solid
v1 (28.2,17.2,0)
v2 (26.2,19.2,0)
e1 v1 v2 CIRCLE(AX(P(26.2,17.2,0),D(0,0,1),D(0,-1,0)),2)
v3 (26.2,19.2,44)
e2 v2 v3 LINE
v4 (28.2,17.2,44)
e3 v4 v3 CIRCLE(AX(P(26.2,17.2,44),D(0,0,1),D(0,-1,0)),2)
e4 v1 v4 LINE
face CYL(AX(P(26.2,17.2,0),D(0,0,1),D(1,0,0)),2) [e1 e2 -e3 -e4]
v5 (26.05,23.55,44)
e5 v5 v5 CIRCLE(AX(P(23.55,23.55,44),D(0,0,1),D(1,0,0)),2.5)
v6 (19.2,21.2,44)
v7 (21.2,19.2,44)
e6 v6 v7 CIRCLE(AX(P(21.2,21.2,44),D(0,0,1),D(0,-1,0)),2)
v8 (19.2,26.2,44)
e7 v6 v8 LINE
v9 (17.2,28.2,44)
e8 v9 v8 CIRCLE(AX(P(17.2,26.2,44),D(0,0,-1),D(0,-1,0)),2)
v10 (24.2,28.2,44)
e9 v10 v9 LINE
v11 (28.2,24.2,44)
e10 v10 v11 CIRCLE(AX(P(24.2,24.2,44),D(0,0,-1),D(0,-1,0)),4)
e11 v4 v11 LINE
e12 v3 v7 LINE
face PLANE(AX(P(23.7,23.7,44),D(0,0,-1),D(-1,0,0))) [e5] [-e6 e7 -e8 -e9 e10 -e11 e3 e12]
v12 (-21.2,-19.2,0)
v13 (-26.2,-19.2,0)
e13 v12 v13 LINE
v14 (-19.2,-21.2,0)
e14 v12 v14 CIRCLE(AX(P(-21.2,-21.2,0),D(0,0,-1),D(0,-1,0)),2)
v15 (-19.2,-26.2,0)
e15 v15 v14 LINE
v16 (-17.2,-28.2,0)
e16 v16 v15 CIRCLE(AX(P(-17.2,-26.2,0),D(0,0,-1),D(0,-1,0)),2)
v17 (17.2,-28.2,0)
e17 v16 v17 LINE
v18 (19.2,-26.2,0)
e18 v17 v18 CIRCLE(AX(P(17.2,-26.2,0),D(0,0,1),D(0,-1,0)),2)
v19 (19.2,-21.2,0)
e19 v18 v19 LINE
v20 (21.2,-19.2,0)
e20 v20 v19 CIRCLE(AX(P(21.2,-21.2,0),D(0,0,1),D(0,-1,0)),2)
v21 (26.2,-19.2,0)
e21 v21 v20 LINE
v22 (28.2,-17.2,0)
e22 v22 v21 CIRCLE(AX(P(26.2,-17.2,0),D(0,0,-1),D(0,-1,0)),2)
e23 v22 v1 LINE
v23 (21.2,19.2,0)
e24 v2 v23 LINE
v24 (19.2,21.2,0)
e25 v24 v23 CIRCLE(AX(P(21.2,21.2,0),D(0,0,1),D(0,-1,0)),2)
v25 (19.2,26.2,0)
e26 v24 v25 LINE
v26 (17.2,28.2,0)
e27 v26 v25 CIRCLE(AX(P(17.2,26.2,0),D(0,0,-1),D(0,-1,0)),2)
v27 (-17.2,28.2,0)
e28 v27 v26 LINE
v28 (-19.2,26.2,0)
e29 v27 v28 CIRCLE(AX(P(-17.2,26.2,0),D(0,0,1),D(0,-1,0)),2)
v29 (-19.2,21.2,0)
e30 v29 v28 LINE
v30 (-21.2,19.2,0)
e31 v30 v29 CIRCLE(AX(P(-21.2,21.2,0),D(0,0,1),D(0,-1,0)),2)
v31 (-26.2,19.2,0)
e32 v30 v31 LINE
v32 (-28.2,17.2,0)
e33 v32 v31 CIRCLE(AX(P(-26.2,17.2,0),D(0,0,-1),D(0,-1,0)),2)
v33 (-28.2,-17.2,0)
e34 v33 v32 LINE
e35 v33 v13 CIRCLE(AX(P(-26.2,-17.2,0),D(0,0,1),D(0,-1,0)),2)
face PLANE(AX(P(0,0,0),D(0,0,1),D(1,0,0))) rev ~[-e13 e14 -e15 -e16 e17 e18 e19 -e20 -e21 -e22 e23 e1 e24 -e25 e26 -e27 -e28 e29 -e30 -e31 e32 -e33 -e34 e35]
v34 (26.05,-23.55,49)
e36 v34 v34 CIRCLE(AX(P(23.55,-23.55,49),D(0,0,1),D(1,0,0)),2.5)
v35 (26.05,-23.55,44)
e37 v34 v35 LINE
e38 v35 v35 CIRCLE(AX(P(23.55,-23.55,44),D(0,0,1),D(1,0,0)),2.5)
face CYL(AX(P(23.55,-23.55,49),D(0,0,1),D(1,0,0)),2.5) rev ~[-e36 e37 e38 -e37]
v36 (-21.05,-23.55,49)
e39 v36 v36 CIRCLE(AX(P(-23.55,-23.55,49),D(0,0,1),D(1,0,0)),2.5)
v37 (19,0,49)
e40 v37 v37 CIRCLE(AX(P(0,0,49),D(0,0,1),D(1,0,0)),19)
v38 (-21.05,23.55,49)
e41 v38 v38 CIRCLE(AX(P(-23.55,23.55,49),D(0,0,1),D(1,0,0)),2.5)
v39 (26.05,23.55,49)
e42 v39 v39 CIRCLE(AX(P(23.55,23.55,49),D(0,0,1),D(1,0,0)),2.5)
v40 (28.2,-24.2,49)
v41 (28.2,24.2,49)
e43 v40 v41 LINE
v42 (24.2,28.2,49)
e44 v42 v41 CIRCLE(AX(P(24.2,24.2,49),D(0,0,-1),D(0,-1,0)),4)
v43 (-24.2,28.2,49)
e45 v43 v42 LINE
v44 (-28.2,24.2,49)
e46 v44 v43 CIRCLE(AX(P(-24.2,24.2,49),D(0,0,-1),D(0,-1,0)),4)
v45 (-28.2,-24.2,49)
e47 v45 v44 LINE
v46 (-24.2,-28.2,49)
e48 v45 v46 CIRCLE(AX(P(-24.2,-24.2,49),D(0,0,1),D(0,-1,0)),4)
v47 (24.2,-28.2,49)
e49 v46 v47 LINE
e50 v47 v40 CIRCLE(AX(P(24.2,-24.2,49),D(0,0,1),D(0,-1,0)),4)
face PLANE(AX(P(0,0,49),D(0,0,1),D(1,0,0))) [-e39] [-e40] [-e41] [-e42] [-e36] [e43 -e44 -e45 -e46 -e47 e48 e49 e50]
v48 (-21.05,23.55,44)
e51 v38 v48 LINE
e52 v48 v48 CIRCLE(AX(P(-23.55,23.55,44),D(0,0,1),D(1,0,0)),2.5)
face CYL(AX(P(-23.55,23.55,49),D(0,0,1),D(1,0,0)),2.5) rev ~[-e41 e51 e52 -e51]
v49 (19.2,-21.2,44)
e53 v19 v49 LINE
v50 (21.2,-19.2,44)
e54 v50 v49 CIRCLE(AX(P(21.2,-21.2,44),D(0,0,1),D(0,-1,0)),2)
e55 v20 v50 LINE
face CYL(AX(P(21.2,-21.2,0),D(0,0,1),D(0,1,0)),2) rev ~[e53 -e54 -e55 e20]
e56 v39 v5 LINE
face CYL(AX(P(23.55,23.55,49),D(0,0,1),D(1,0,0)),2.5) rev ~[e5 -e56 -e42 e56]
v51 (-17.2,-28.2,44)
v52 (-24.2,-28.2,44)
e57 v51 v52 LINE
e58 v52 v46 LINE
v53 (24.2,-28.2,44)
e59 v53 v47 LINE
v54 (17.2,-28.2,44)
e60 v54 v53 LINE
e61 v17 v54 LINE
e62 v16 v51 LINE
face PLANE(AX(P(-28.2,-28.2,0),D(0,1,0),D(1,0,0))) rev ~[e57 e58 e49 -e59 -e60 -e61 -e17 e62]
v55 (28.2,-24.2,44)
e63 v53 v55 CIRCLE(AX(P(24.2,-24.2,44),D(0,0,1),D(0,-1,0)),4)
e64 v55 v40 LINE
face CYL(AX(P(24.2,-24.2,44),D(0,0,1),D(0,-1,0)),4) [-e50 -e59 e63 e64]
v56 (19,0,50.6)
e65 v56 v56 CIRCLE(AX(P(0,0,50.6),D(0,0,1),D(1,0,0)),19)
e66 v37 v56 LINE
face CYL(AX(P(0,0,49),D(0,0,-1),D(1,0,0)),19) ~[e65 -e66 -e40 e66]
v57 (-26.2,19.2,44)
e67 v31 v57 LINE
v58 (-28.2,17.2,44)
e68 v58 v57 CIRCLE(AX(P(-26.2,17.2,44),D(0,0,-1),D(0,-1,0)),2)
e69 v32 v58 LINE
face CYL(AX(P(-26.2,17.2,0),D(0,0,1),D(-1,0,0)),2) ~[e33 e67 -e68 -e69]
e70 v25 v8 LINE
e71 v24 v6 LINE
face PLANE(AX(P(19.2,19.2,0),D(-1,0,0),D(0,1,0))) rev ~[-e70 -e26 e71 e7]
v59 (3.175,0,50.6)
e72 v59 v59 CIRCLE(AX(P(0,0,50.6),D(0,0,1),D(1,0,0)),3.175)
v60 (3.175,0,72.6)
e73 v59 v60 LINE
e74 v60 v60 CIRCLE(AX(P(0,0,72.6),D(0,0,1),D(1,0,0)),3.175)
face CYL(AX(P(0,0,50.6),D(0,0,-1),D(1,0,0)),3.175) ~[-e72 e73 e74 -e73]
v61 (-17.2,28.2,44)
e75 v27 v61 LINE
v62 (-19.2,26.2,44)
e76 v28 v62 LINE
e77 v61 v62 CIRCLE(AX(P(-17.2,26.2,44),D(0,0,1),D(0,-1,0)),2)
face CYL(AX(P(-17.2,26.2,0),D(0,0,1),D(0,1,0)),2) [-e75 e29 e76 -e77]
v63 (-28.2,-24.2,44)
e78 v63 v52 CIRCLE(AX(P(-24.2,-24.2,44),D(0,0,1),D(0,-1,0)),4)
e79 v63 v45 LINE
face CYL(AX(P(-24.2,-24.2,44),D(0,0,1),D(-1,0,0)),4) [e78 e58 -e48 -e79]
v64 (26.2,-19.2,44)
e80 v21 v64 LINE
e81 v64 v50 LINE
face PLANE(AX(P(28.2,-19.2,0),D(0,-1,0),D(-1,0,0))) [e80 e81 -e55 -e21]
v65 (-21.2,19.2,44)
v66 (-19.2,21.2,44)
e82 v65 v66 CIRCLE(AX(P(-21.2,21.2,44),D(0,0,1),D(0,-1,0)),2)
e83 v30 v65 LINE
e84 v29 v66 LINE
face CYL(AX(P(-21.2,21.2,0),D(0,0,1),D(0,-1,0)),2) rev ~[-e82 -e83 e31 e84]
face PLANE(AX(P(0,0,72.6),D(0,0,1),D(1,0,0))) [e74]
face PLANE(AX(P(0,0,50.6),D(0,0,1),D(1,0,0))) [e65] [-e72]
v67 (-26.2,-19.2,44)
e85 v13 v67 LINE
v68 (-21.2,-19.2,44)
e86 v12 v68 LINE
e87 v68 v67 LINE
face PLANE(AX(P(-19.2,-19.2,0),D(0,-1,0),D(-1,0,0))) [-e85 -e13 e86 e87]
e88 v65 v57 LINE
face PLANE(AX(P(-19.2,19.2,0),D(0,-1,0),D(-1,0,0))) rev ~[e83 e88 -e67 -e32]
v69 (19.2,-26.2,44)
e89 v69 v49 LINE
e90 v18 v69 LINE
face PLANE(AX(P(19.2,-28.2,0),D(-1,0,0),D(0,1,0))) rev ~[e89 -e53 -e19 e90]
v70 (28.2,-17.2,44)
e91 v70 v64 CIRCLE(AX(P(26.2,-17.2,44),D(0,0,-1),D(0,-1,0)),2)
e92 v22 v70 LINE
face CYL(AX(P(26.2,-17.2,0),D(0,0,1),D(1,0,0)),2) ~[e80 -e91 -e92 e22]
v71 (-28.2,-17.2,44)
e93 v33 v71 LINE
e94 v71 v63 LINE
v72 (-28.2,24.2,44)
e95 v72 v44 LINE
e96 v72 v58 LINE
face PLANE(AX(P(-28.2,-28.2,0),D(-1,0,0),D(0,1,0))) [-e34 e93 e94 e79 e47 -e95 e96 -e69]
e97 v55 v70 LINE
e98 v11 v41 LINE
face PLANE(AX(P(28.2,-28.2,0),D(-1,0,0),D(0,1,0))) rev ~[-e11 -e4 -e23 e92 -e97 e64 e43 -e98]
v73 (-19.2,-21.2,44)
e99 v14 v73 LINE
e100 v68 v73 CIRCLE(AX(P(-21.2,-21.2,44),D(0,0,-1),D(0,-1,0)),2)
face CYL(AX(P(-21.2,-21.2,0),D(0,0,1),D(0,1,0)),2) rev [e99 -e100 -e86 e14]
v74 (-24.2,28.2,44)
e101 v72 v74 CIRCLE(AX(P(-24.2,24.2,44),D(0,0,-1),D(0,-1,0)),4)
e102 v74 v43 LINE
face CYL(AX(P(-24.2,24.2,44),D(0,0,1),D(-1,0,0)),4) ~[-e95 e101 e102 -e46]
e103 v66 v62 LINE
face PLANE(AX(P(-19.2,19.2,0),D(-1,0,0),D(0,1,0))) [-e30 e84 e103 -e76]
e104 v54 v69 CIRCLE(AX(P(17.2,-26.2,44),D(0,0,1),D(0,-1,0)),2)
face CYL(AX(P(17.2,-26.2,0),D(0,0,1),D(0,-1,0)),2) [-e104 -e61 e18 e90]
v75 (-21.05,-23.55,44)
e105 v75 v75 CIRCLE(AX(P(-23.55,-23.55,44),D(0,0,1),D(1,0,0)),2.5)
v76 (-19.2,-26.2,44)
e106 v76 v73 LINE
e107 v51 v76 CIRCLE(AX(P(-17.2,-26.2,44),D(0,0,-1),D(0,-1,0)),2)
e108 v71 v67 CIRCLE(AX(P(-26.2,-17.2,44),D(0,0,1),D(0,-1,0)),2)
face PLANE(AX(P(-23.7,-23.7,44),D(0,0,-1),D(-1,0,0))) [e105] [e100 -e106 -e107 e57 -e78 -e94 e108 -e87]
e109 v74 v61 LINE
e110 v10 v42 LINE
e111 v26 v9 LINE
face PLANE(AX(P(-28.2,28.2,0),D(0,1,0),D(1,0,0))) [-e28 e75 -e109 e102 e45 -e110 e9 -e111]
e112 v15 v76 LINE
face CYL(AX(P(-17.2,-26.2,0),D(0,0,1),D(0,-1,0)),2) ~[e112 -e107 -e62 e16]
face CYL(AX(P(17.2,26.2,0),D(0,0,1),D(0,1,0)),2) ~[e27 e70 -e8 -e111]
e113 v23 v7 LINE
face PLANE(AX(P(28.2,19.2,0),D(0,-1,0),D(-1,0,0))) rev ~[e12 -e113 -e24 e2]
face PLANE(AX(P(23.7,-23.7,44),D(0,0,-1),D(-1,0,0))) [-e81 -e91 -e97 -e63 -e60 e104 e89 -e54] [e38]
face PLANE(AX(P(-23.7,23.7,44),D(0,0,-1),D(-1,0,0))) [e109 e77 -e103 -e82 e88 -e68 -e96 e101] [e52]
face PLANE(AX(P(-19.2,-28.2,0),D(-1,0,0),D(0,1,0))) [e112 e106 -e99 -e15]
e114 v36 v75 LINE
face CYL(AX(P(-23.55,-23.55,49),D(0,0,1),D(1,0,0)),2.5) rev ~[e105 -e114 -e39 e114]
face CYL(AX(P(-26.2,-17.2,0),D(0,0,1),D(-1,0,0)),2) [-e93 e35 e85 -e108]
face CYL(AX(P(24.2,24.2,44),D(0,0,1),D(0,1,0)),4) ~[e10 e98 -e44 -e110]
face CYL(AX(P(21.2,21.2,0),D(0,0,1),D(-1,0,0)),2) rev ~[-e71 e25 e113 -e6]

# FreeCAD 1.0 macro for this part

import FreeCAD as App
import Part
import Sketcher


def edges_at(feature, points):
    """Names of the edges that pass closest to the given points."""
    edges = feature.Shape.Edges
    near = lambda p: min(range(len(edges)), key=lambda i: edges[i].distToShape(Part.Vertex(*p))[0])
    return sorted({f"Edge{near(p) + 1}" for p in points})

doc = App.newDocument("Part")
body = doc.addObject("PartDesign::Body", "Body")

sketch1 = body.newObject("Sketcher::SketchObject", "Sketch")
sketch1.AttachmentSupport = (doc.getObject("XY_Plane"), [""])
sketch1.MapMode = "FlatFace"
sketch1.addGeometry(Part.LineSegment(App.Vector(-28, 28, 0), App.Vector(-28, -28, 0)), False)
sketch1.addGeometry(Part.LineSegment(App.Vector(-28, -28, 0), App.Vector(28, -28, 0)), False)
sketch1.addGeometry(Part.LineSegment(App.Vector(28, -28, 0), App.Vector(28, 28, 0)), False)
sketch1.addGeometry(Part.LineSegment(App.Vector(28, 28, 0), App.Vector(-28, 28, 0)), False)
sketch1.addConstraint(Sketcher.Constraint("Coincident", 0, 2, 1, 1))
sketch1.addConstraint(Sketcher.Constraint("Coincident", 1, 2, 2, 1))
sketch1.addConstraint(Sketcher.Constraint("Coincident", 2, 2, 3, 1))
sketch1.addConstraint(Sketcher.Constraint("Coincident", 3, 2, 0, 1))
sketch1.addConstraint(Sketcher.Constraint("Vertical", 0))
sketch1.addConstraint(Sketcher.Constraint("Horizontal", 1))
sketch1.addConstraint(Sketcher.Constraint("Vertical", 2))
sketch1.addConstraint(Sketcher.Constraint("Horizontal", 3))
sketch1.addConstraint(Sketcher.Constraint("Symmetric", 0, 2, 2, 2, -1, 1))
sketch1.addConstraint(Sketcher.Constraint("Equal", 3, 0))
sketch1.addConstraint(Sketcher.Constraint("DistanceX", 1, 1, 1, 2, 56.4))
pad1 = body.newObject("PartDesign::Pad", "Pad")
pad1.Profile = sketch1
pad1.Length = 49

sketch2 = body.newObject("Sketcher::SketchObject", "Sketch001")
sketch2.AttachmentSupport = (doc.getObject("XY_Plane"), [""])
sketch2.MapMode = "FlatFace"
sketch2.AttachmentOffset = App.Placement(App.Vector(0, 0, 49), App.Rotation())
sketch2.addGeometry(Part.Circle(App.Vector(0, 0, 0), App.Vector(0, 0, 1), 19), False)
sketch2.addConstraint(Sketcher.Constraint("Coincident", 0, 3, -1, 1))
sketch2.addConstraint(Sketcher.Constraint("Diameter", 0, 38.0))
pad2 = body.newObject("PartDesign::Pad", "Pad001")
pad2.Profile = sketch2
pad2.Length = 1.6

sketch3 = body.newObject("Sketcher::SketchObject", "Sketch002")
sketch3.AttachmentSupport = (doc.getObject("XY_Plane"), [""])
sketch3.MapMode = "FlatFace"
sketch3.AttachmentOffset = App.Placement(App.Vector(0, 0, 50.6), App.Rotation())
sketch3.addGeometry(Part.Circle(App.Vector(0, 0, 0), App.Vector(0, 0, 1), 3.2), False)
sketch3.addConstraint(Sketcher.Constraint("Coincident", 0, 3, -1, 1))
sketch3.addConstraint(Sketcher.Constraint("Diameter", 0, 6.35))
pad3 = body.newObject("PartDesign::Pad", "Pad002")
pad3.Profile = sketch3
pad3.Length = 22

sketch4 = body.newObject("Sketcher::SketchObject", "Sketch003")
sketch4.AttachmentSupport = (doc.getObject("XY_Plane"), [""])
sketch4.MapMode = "FlatFace"
sketch4.AttachmentOffset = App.Placement(App.Vector(0, 0, 49), App.Rotation())
sketch4.addGeometry(Part.Circle(App.Vector(23.6, 23.6, 0), App.Vector(0, 0, 1), 2.5), False)
sketch4.addGeometry(Part.Circle(App.Vector(-23.6, 23.6, 0), App.Vector(0, 0, 1), 2.5), False)
sketch4.addGeometry(Part.Circle(App.Vector(-23.6, -23.6, 0), App.Vector(0, 0, 1), 2.5), False)
sketch4.addGeometry(Part.Circle(App.Vector(23.6, -23.6, 0), App.Vector(0, 0, 1), 2.5), False)
sketch4.addConstraint(Sketcher.Constraint("Equal", 0, 1))
sketch4.addConstraint(Sketcher.Constraint("Equal", 1, 2))
sketch4.addConstraint(Sketcher.Constraint("Equal", 2, 3))
sketch4.addConstraint(Sketcher.Constraint("Symmetric", 0, 3, 2, 3, -1, 1))
sketch4.addConstraint(Sketcher.Constraint("Symmetric", 1, 3, 3, 3, -1, 1))
sketch4.addConstraint(Sketcher.Constraint("Symmetric", 0, 3, 1, 3, -2))
sketch4.addConstraint(Sketcher.Constraint("Diameter", 0, 5.0))
sketch4.addConstraint(Sketcher.Constraint("DistanceX", 1, 3, 0, 3, 47.1))
sketch4.addConstraint(Sketcher.Constraint("DistanceY", 2, 3, 1, 3, 47.1))
pocket1 = body.newObject("PartDesign::Pocket", "Pocket")
pocket1.Profile = sketch4
pocket1.Type = "ThroughAll"

sketch5 = body.newObject("Sketcher::SketchObject", "Sketch004")
sketch5.AttachmentSupport = (doc.getObject("XY_Plane"), [""])
sketch5.MapMode = "FlatFace"
sketch5.addGeometry(Part.LineSegment(App.Vector(28, 28, 0), App.Vector(28, 19, 0)), False)
sketch5.addGeometry(Part.LineSegment(App.Vector(28, 19, 0), App.Vector(19, 19, 0)), False)
sketch5.addGeometry(Part.LineSegment(App.Vector(19, 19, 0), App.Vector(19, 28, 0)), False)
sketch5.addGeometry(Part.LineSegment(App.Vector(19, 28, 0), App.Vector(28, 28, 0)), False)
sketch5.addGeometry(Part.LineSegment(App.Vector(-19, 28, 0), App.Vector(-19, 19, 0)), False)
sketch5.addGeometry(Part.LineSegment(App.Vector(-19, 19, 0), App.Vector(-28, 19, 0)), False)
sketch5.addGeometry(Part.LineSegment(App.Vector(-28, 19, 0), App.Vector(-28, 28, 0)), False)
sketch5.addGeometry(Part.LineSegment(App.Vector(-28, 28, 0), App.Vector(-19, 28, 0)), False)
sketch5.addGeometry(Part.LineSegment(App.Vector(-19, -19, 0), App.Vector(-19, -28, 0)), False)
sketch5.addGeometry(Part.LineSegment(App.Vector(-19, -28, 0), App.Vector(-28, -28, 0)), False)
sketch5.addGeometry(Part.LineSegment(App.Vector(-28, -28, 0), App.Vector(-28, -19, 0)), False)
sketch5.addGeometry(Part.LineSegment(App.Vector(-28, -19, 0), App.Vector(-19, -19, 0)), False)
sketch5.addGeometry(Part.LineSegment(App.Vector(28, -19, 0), App.Vector(28, -28, 0)), False)
sketch5.addGeometry(Part.LineSegment(App.Vector(28, -28, 0), App.Vector(19, -28, 0)), False)
sketch5.addGeometry(Part.LineSegment(App.Vector(19, -28, 0), App.Vector(19, -19, 0)), False)
sketch5.addGeometry(Part.LineSegment(App.Vector(19, -19, 0), App.Vector(28, -19, 0)), False)
sketch5.addConstraint(Sketcher.Constraint("Coincident", 0, 2, 1, 1))
sketch5.addConstraint(Sketcher.Constraint("Coincident", 1, 2, 2, 1))
sketch5.addConstraint(Sketcher.Constraint("Coincident", 2, 2, 3, 1))
sketch5.addConstraint(Sketcher.Constraint("Coincident", 3, 2, 0, 1))
sketch5.addConstraint(Sketcher.Constraint("Coincident", 4, 2, 5, 1))
sketch5.addConstraint(Sketcher.Constraint("Coincident", 5, 2, 6, 1))
sketch5.addConstraint(Sketcher.Constraint("Coincident", 6, 2, 7, 1))
sketch5.addConstraint(Sketcher.Constraint("Coincident", 7, 2, 4, 1))
sketch5.addConstraint(Sketcher.Constraint("Coincident", 8, 2, 9, 1))
sketch5.addConstraint(Sketcher.Constraint("Coincident", 9, 2, 10, 1))
sketch5.addConstraint(Sketcher.Constraint("Coincident", 10, 2, 11, 1))
sketch5.addConstraint(Sketcher.Constraint("Coincident", 11, 2, 8, 1))
sketch5.addConstraint(Sketcher.Constraint("Coincident", 12, 2, 13, 1))
sketch5.addConstraint(Sketcher.Constraint("Coincident", 13, 2, 14, 1))
sketch5.addConstraint(Sketcher.Constraint("Coincident", 14, 2, 15, 1))
sketch5.addConstraint(Sketcher.Constraint("Coincident", 15, 2, 12, 1))
sketch5.addConstraint(Sketcher.Constraint("Vertical", 0))
sketch5.addConstraint(Sketcher.Constraint("Horizontal", 1))
sketch5.addConstraint(Sketcher.Constraint("Vertical", 2))
sketch5.addConstraint(Sketcher.Constraint("Horizontal", 3))
sketch5.addConstraint(Sketcher.Constraint("Vertical", 4))
sketch5.addConstraint(Sketcher.Constraint("Horizontal", 5))
sketch5.addConstraint(Sketcher.Constraint("Vertical", 6))
sketch5.addConstraint(Sketcher.Constraint("Horizontal", 7))
sketch5.addConstraint(Sketcher.Constraint("Vertical", 8))
sketch5.addConstraint(Sketcher.Constraint("Horizontal", 9))
sketch5.addConstraint(Sketcher.Constraint("Vertical", 10))
sketch5.addConstraint(Sketcher.Constraint("Horizontal", 11))
sketch5.addConstraint(Sketcher.Constraint("Vertical", 12))
sketch5.addConstraint(Sketcher.Constraint("Horizontal", 13))
sketch5.addConstraint(Sketcher.Constraint("Vertical", 14))
sketch5.addConstraint(Sketcher.Constraint("Horizontal", 15))
sketch5.addConstraint(Sketcher.Constraint("Symmetric", 2, 2, 8, 2, -1, 1))
sketch5.addConstraint(Sketcher.Constraint("Symmetric", 0, 2, 10, 2, -1, 1))
sketch5.addConstraint(Sketcher.Constraint("Symmetric", 6, 2, 12, 2, -1, 1))
sketch5.addConstraint(Sketcher.Constraint("Symmetric", 4, 2, 14, 2, -1, 1))
sketch5.addConstraint(Sketcher.Constraint("Symmetric", 1, 2, 4, 2, -2))
sketch5.addConstraint(Sketcher.Constraint("Symmetric", 3, 2, 6, 2, -2))
sketch5.addConstraint(Sketcher.Constraint("Equal", 15, 0))
sketch5.addConstraint(Sketcher.Constraint("DistanceX", 1, 2, 1, 1, 9.0))
sketch5.addConstraint(Sketcher.Constraint("DistanceX", -1, 1, 0, 2, 28.2))
sketch5.addConstraint(Sketcher.Constraint("DistanceY", -1, 1, 0, 2, 19.2))
pocket2 = body.newObject("PartDesign::Pocket", "Pocket001")
pocket2.Profile = sketch5
pocket2.Length = 44
pocket2.Reversed = True
doc.recompute()

fillet = body.newObject("PartDesign::Fillet", "Fillet")
fillet.Base = (pocket2, edges_at(pocket2, [
    (28.2, -28.2, 46.5),
    (-28.2, -28.2, 46.5),
    (-28.2, 28.2, 46.5),
    (28.2, 28.2, 46.5),
]))
fillet.Radius = 4
doc.recompute()

fillet2 = body.newObject("PartDesign::Fillet", "Fillet001")
fillet2.Base = (fillet, edges_at(fillet, [
    (28.2, 19.2, 22),
    (19.2, 28.2, 22),
    (19.2, 19.2, 22),
    (-28.2, 19.2, 22),
    (-19.2, 19.2, 22),
    (-19.2, 28.2, 22),
    (-28.2, -19.2, 22),
    (-19.2, -28.2, 22),
    (-19.2, -19.2, 22),
    (28.2, -19.2, 22),
    (19.2, -19.2, 22),
    (19.2, -28.2, 22),
]))
fillet2.Radius = 2

doc.recompute()
